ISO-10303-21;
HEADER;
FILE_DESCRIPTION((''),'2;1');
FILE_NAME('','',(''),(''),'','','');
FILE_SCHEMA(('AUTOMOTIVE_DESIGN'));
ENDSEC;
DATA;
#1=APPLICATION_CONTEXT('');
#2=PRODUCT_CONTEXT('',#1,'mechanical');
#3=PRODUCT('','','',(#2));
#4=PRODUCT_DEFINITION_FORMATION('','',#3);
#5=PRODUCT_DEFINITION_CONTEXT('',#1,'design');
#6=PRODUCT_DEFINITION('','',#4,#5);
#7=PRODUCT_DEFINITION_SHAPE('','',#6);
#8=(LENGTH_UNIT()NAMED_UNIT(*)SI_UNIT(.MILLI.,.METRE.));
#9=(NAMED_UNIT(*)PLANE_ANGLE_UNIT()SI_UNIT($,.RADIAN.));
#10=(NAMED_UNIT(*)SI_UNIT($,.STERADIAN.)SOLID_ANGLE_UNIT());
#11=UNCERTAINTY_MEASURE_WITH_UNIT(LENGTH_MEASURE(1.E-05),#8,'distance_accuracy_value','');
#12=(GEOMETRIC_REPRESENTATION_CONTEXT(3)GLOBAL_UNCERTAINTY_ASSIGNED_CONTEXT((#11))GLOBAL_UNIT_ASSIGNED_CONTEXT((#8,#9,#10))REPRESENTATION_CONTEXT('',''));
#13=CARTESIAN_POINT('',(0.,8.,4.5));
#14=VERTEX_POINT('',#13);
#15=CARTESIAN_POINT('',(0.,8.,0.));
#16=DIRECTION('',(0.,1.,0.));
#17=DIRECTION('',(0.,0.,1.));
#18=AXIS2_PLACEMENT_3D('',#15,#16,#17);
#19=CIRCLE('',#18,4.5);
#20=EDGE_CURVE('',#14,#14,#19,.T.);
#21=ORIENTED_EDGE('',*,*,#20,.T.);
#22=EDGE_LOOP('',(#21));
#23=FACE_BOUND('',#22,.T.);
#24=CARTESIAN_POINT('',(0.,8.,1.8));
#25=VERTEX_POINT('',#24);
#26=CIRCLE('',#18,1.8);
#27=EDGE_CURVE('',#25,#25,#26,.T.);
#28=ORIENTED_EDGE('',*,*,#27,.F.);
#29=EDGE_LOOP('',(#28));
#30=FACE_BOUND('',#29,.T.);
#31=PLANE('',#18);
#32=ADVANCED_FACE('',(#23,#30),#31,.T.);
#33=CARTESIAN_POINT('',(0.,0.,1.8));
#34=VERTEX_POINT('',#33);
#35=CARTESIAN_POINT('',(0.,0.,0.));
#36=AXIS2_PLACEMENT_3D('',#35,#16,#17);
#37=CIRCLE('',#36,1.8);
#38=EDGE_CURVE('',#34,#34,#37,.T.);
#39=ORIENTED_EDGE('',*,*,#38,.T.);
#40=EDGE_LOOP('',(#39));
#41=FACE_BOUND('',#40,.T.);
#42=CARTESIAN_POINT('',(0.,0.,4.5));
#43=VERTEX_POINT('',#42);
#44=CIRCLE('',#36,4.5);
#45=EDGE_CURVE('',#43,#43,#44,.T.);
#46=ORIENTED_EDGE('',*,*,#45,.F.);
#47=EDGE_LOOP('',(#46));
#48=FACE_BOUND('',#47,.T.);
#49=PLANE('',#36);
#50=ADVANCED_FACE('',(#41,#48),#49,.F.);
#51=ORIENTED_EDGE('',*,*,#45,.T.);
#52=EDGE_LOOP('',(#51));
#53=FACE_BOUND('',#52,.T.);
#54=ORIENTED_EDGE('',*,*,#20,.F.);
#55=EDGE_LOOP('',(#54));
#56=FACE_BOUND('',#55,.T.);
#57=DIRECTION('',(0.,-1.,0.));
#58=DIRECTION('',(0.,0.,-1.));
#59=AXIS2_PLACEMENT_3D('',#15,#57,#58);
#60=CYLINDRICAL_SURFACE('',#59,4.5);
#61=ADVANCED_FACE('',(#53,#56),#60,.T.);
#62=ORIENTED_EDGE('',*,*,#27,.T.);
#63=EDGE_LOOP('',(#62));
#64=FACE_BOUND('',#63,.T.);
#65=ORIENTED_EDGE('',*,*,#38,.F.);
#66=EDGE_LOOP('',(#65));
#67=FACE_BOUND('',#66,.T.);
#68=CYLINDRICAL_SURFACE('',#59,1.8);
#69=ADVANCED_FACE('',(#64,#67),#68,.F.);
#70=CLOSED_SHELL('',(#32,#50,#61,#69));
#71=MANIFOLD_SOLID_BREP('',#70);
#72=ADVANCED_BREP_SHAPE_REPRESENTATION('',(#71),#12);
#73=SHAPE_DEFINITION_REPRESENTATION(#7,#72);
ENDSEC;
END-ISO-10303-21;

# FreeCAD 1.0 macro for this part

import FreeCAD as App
import Part
import Sketcher

doc = App.newDocument("Part")
body = doc.addObject("PartDesign::Body", "Body")

sketch1 = body.newObject("Sketcher::SketchObject", "Sketch")
sketch1.AttachmentSupport = (doc.getObject("XZ_Plane"), [""])
sketch1.MapMode = "FlatFace"
sketch1.addGeometry(Part.Circle(App.Vector(0, 0, 0), App.Vector(0, 0, 1), 4.5), False)
sketch1.addGeometry(Part.Circle(App.Vector(0, 0, 0), App.Vector(0, 0, 1), 1.8), False)
sketch1.addConstraint(Sketcher.Constraint("Coincident", 0, 3, -1, 1))
sketch1.addConstraint(Sketcher.Constraint("Coincident", 1, 3, -1, 1))
sketch1.addConstraint(Sketcher.Constraint("Diameter", 0, 9.0))
sketch1.addConstraint(Sketcher.Constraint("Diameter", 1, 3.6))
pad1 = body.newObject("PartDesign::Pad", "Pad")
pad1.Profile = sketch1
pad1.Length = 8
pad1.Reversed = True

doc.recompute()
